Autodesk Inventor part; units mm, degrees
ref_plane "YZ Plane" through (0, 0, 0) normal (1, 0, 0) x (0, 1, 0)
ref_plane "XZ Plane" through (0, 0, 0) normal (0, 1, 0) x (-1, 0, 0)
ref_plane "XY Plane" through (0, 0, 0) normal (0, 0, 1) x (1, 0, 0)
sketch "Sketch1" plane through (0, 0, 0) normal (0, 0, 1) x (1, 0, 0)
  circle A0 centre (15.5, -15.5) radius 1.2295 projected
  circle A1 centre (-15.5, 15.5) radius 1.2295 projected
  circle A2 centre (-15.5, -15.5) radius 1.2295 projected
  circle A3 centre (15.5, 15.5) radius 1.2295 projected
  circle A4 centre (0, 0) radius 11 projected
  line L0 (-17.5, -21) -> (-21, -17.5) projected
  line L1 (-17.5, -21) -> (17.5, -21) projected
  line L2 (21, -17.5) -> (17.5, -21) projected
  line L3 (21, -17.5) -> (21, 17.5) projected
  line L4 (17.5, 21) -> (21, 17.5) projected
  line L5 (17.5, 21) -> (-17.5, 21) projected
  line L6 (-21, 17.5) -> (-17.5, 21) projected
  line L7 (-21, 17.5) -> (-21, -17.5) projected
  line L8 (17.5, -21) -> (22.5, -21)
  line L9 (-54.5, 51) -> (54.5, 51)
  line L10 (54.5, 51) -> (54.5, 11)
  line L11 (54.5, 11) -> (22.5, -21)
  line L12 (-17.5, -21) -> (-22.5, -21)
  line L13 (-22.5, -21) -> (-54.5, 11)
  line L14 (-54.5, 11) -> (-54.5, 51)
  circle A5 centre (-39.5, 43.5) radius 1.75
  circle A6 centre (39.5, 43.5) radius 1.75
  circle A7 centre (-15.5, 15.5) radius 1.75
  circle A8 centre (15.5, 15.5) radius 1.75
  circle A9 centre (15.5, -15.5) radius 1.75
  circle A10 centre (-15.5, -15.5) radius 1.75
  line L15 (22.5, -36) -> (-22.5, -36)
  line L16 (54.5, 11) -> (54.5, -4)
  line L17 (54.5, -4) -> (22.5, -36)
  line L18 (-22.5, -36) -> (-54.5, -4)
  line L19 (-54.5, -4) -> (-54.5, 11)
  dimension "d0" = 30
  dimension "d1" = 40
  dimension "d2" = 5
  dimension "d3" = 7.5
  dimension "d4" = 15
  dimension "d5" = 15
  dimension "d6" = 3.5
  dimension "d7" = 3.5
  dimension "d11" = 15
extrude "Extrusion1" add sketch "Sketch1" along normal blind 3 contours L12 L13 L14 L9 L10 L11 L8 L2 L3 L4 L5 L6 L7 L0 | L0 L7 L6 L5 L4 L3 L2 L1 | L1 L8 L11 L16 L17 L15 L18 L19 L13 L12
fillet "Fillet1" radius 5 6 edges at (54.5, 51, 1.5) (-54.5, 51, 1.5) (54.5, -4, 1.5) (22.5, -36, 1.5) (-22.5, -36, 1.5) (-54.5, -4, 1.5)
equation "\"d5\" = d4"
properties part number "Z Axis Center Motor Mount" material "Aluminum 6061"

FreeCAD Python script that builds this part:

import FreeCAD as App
import Part
import Sketcher
from FreeCAD import Vector
Q = App.Units.Quantity


def edges_at(feature, points):
    """Names of the edges that pass closest to the given points."""
    edges = feature.Shape.Edges
    near = lambda p: min(range(len(edges)), key=lambda i: edges[i].distToShape(Part.Vertex(*p))[0])
    return sorted({f"Edge{near(p) + 1}" for p in points})


def add_polygon(sketch, points):
    """Adds a closed chain of lines whose ends are joined by coincident constraints."""
    first, n = sketch.GeometryCount, len(points)
    for a, b in zip(points, points[1:] + points[:1]):
        sketch.addGeometry(Part.LineSegment(App.Vector(*a, 0), App.Vector(*b, 0)), False)
    for i in range(n):
        sketch.addConstraint(Sketcher.Constraint("Coincident", first + i, 2, first + (i + 1) % n, 1))

doc = App.newDocument("Part")
params = doc.addObject("Spreadsheet::Sheet", "Params")
for row, (alias, value) in enumerate([
    ("sketch1_diameter", "3.5 mm"),
    ("sketch1_diameter2", "22 mm"),
    ("sketch1_width", "45 mm"),
    ("sketch1_width2", "109 mm"),
    ("sketch1_height", "55 mm"),
    ("pad1_length", "3 mm"),
    ("fillet_radius", "5 mm"),
], start=1):
    params.set(f"A{row}", alias)
    params.set(f"B{row}", "=" + value)
    params.setAlias(f"B{row}", alias)

body = doc.addObject("PartDesign::Body", "Body")

# Sketch on XY plane
sketch1 = body.newObject("Sketcher::SketchObject", "Sketch")
sketch1.AttachmentSupport = (doc.getObject("XY_Plane"), [""])
sketch1.MapMode = "FlatFace"
add_polygon(sketch1, [(-54.5, 51), (-54.5, -4), (-22.5, -36), (22.5, -36), (54.5, -4), (54.5, 51)])  # lines 0-5
sketch1.addGeometry(Part.Circle(Vector(-39.5, 43.5, 0), Vector(0, 0, 1), 1.8), False)  # 6
sketch1.addGeometry(Part.Circle(Vector(39.5, 43.5, 0), Vector(0, 0, 1), 1.8), False)  # 7
sketch1.addGeometry(Part.Circle(Vector(15.5, 15.5, 0), Vector(0, 0, 1), 1.8), False)  # 8
sketch1.addGeometry(Part.Circle(Vector(-15.5, 15.5, 0), Vector(0, 0, 1), 1.8), False)  # 9
sketch1.addGeometry(Part.Circle(Vector(-15.5, -15.5, 0), Vector(0, 0, 1), 1.8), False)  # 10
sketch1.addGeometry(Part.Circle(Vector(15.5, -15.5, 0), Vector(0, 0, 1), 1.8), False)  # 11
sketch1.addGeometry(Part.Circle(Vector(0, 0, 0), Vector(0, 0, 1), 11), False)  # 12
sketch1.addConstraint(Sketcher.Constraint("Vertical", 0))
sketch1.addConstraint(Sketcher.Constraint("Horizontal", 2))
sketch1.addConstraint(Sketcher.Constraint("Vertical", 4))
sketch1.addConstraint(Sketcher.Constraint("Horizontal", 5))
sketch1.addConstraint(Sketcher.Constraint("Coincident", 12, 3, -1, 1))
sketch1.addConstraint(Sketcher.Constraint("Equal", 6, 7))
sketch1.addConstraint(Sketcher.Constraint("Equal", 7, 8))
sketch1.addConstraint(Sketcher.Constraint("Equal", 8, 9))
sketch1.addConstraint(Sketcher.Constraint("Equal", 9, 10))
sketch1.addConstraint(Sketcher.Constraint("Equal", 10, 11))
sketch1.addConstraint(Sketcher.Constraint("Symmetric", 8, 3, 10, 3, -1, 1))
sketch1.addConstraint(Sketcher.Constraint("Symmetric", 9, 3, 11, 3, -1, 1))
sketch1.addConstraint(Sketcher.Constraint("Symmetric", 6, 3, 7, 3, -2))
sketch1.addConstraint(Sketcher.Constraint("Symmetric", 8, 3, 9, 3, -2))
sketch1.addConstraint(Sketcher.Constraint("Symmetric", 0, 2, 3, 2, -2))
sketch1.addConstraint(Sketcher.Constraint("Perpendicular", 1, 3))
sketch1.addConstraint(Sketcher.Constraint("Equal", 1, 3))
sketch1.addConstraint(Sketcher.Constraint("Diameter", 6, Q("3.5 mm")))
sketch1.addConstraint(Sketcher.Constraint("Diameter", 12, Q("22 mm")))
sketch1.addConstraint(Sketcher.Constraint("DistanceX", 0, 2, 6, 3, Q("15 mm")))
sketch1.addConstraint(Sketcher.Constraint("DistanceY", 7, 3, 4, 2, Q("7.5 mm")))
sketch1.addConstraint(Sketcher.Constraint("DistanceX", 2, 1, 2, 2, Q("45 mm")))
sketch1.addConstraint(Sketcher.Constraint("DistanceX", 5, 2, 5, 1, Q("109 mm")))
sketch1.addConstraint(Sketcher.Constraint("DistanceY", 0, 2, 0, 1, Q("55 mm")))
sketch1.addConstraint(Sketcher.Constraint("DistanceY", 0, 2, -1, 1, Q("4 mm")))
sketch1.addConstraint(Sketcher.Constraint("DistanceX", 8, 3, 7, 3, Q("24 mm")))
sketch1.addConstraint(Sketcher.Constraint("DistanceY", 8, 3, 7, 3, Q("28 mm")))
sketch1.setExpression("Constraints[23]", "Params.sketch1_diameter")
sketch1.setExpression("Constraints[24]", "Params.sketch1_diameter2")
sketch1.setExpression("Constraints[27]", "Params.sketch1_width")
sketch1.setExpression("Constraints[28]", "Params.sketch1_width2")
sketch1.setExpression("Constraints[29]", "Params.sketch1_height")
pad1 = body.newObject("PartDesign::Pad", "Pad")
pad1.Profile = sketch1
pad1.setExpression("Length", "Params.pad1_length")
doc.recompute()

fillet = body.newObject("PartDesign::Fillet", "Fillet")
fillet.Base = (pad1, edges_at(pad1, [
    (54.5, 51, 1.5),
    (-54.5, 51, 1.5),
    (54.5, -4, 1.5),
    (22.5, -36, 1.5),
    (-22.5, -36, 1.5),
    (-54.5, -4, 1.5),
]))
fillet.setExpression("Radius", "Params.fillet_radius")

doc.recompute()
